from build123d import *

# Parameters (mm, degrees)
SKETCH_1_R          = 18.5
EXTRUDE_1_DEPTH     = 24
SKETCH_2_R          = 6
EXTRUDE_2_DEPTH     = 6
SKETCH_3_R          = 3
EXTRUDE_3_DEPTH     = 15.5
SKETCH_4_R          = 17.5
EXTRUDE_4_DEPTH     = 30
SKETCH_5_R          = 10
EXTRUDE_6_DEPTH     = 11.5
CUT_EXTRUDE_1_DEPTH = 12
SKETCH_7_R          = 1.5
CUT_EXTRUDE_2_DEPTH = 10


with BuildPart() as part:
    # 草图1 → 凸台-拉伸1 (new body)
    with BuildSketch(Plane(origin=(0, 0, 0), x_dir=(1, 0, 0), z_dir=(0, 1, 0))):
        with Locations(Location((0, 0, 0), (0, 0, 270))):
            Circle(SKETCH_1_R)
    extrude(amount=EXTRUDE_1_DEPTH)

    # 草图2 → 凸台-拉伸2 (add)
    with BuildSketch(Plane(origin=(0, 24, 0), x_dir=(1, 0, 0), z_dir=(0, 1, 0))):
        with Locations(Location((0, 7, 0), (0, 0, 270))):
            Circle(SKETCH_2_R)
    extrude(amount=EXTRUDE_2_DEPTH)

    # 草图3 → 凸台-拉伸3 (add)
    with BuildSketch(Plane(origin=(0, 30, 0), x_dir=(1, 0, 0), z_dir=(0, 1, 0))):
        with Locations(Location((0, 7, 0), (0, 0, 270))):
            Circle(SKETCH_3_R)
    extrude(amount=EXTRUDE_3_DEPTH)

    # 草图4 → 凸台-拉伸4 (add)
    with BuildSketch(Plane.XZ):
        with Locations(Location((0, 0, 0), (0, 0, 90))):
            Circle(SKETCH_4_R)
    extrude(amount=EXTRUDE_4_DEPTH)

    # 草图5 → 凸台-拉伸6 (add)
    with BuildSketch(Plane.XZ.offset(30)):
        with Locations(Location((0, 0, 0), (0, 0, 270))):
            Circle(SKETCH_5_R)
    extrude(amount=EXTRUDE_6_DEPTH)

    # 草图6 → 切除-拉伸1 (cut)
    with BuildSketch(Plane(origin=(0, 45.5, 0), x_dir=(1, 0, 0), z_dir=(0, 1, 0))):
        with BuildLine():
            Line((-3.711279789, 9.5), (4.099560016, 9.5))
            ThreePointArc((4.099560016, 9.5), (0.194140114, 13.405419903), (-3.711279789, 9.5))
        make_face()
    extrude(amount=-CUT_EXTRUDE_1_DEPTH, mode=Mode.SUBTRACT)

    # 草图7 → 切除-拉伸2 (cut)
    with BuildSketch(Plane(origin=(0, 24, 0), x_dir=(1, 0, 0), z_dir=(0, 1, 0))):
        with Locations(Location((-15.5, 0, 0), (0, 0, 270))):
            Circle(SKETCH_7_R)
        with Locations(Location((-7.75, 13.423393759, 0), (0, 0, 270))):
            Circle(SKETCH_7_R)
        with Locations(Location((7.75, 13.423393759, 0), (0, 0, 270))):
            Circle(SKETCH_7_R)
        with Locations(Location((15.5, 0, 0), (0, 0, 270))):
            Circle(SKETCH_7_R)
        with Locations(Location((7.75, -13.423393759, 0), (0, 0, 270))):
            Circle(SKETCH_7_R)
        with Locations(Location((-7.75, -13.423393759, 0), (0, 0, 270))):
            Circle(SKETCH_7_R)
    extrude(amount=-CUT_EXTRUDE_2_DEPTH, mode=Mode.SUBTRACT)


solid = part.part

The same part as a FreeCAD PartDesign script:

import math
import FreeCAD as App
import Part
import Sketcher
from FreeCAD import Vector

doc = App.newDocument("Part")
body = doc.addObject("PartDesign::Body", "Body")

# Sketch on XZ plane
sketch1 = body.newObject("Sketcher::SketchObject", "Sketch")
sketch1.AttachmentSupport = (doc.getObject("XZ_Plane"), [""])
sketch1.MapMode = "FlatFace"
sketch1.addGeometry(Part.Circle(Vector(0, 0, 0), Vector(0, 0, 1), 18), False)
sketch1.addConstraint([
    Sketcher.Constraint("Coincident", 0, 3, -1, 1),
    Sketcher.Constraint("Diameter", 0, 37.0),
])
pad1 = body.newObject("PartDesign::Pad", "Pad")
pad1.Profile = sketch1
pad1.Length = 24
pad1.Reversed = True

# Sketch on XZ plane
sketch2 = body.newObject("Sketcher::SketchObject", "Sketch001")
sketch2.AttachmentSupport = (doc.getObject("XZ_Plane"), [""])
sketch2.MapMode = "FlatFace"
sketch2.AttachmentOffset = App.Placement(Vector(0, 0, -24), App.Rotation())
sketch2.addGeometry(Part.Circle(Vector(0, -7, 0), Vector(0, 0, 1), 6), False)
sketch2.addConstraint([
    Sketcher.Constraint("PointOnObject", 0, 3, -2),
    Sketcher.Constraint("Diameter", 0, 12.0),
    Sketcher.Constraint("DistanceY", 0, 3, -1, 1, 7.0),
])
pad2 = body.newObject("PartDesign::Pad", "Pad001")
pad2.Profile = sketch2
pad2.Length = 6
pad2.Reversed = True

# Sketch on XZ plane
sketch3 = body.newObject("Sketcher::SketchObject", "Sketch002")
sketch3.AttachmentSupport = (doc.getObject("XZ_Plane"), [""])
sketch3.MapMode = "FlatFace"
sketch3.AttachmentOffset = App.Placement(Vector(0, 0, -30), App.Rotation())
sketch3.addGeometry(Part.Circle(Vector(0, -7, 0), Vector(0, 0, 1), 3), False)
sketch3.addConstraint([
    Sketcher.Constraint("PointOnObject", 0, 3, -2),
    Sketcher.Constraint("Diameter", 0, 6.0),
    Sketcher.Constraint("DistanceY", 0, 3, -1, 1, 7.0),
])
pad3 = body.newObject("PartDesign::Pad", "Pad002")
pad3.Profile = sketch3
pad3.Length = 15.5
pad3.Reversed = True

# Sketch on XZ plane
sketch4 = body.newObject("Sketcher::SketchObject", "Sketch003")
sketch4.AttachmentSupport = (doc.getObject("XZ_Plane"), [""])
sketch4.MapMode = "FlatFace"
sketch4.addGeometry(Part.Circle(Vector(0, 0, 0), Vector(0, 0, 1), 18), False)
sketch4.addConstraint([
    Sketcher.Constraint("Coincident", 0, 3, -1, 1),
    Sketcher.Constraint("Diameter", 0, 35.0),
])
pad4 = body.newObject("PartDesign::Pad", "Pad003")
pad4.Profile = sketch4
pad4.Length = 30

# Sketch on XZ plane
sketch5 = body.newObject("Sketcher::SketchObject", "Sketch004")
sketch5.AttachmentSupport = (doc.getObject("XZ_Plane"), [""])
sketch5.MapMode = "FlatFace"
sketch5.AttachmentOffset = App.Placement(Vector(0, 0, 30), App.Rotation())
sketch5.addGeometry(Part.Circle(Vector(0, 0, 0), Vector(0, 0, 1), 10), False)
sketch5.addConstraint([
    Sketcher.Constraint("Coincident", 0, 3, -1, 1),
    Sketcher.Constraint("Diameter", 0, 20.0),
])
pad5 = body.newObject("PartDesign::Pad", "Pad004")
pad5.Profile = sketch5
pad5.Length = 11.5

# Sketch on XZ plane
sketch6 = body.newObject("Sketcher::SketchObject", "Sketch005")
sketch6.AttachmentSupport = (doc.getObject("XZ_Plane"), [""])
sketch6.MapMode = "FlatFace"
sketch6.AttachmentOffset = App.Placement(Vector(0, 0, -45.5), App.Rotation())
sketch6.addGeometry([
    Part.LineSegment(Vector(-3.7, -9.5, 0), Vector(4.1, -9.5, 0)),
    Part.ArcOfCircle(Part.Circle(Vector(0.2, -9.5, 0), Vector(0, 0, 1), 3.9), math.radians(180), math.radians(360)),
], False)
sketch6.addConstraint([
    Sketcher.Constraint("Coincident", 0, 1, 1, 1),
    Sketcher.Constraint("Coincident", 1, 2, 0, 2),
    Sketcher.Constraint("Horizontal", 0),
    Sketcher.Constraint("Horizontal", 1, 3, 0, 1),
    Sketcher.Constraint("DistanceY", 1, 3, -1, 1, 9.5),
    Sketcher.Constraint("Radius", 1, 3.90542),
    Sketcher.Constraint("DistanceX", -1, 1, 1, 3, 0.19414),
])
pocket1 = body.newObject("PartDesign::Pocket", "Pocket")
pocket1.Profile = sketch6
pocket1.Length = 12
pocket1.Reversed = True

# Sketch on XZ plane
sketch7 = body.newObject("Sketcher::SketchObject", "Sketch006")
sketch7.AttachmentSupport = (doc.getObject("XZ_Plane"), [""])
sketch7.MapMode = "FlatFace"
sketch7.AttachmentOffset = App.Placement(Vector(0, 0, -24), App.Rotation())
sketch7.addGeometry([
    Part.Circle(Vector(-15.5, 0, 0), Vector(0, 0, 1), 1.5),  # 0
    Part.Circle(Vector(-7.8, -13.4, 0), Vector(0, 0, 1), 1.5),  # 1
    Part.Circle(Vector(7.8, -13.4, 0), Vector(0, 0, 1), 1.5),  # 2
    Part.Circle(Vector(15.5, 0, 0), Vector(0, 0, 1), 1.5),  # 3
    Part.Circle(Vector(7.8, 13.4, 0), Vector(0, 0, 1), 1.5),  # 4
    Part.Circle(Vector(-7.8, 13.4, 0), Vector(0, 0, 1), 1.5),  # 5
], False)
sketch7.addConstraint([
    Sketcher.Constraint("Equal", 0, 1),
    Sketcher.Constraint("Equal", 1, 2),
    Sketcher.Constraint("Equal", 2, 3),
    Sketcher.Constraint("Equal", 3, 4),
    Sketcher.Constraint("Equal", 4, 5),
    Sketcher.Constraint("Symmetric", 0, 3, 3, 3, -1, 1),
    Sketcher.Constraint("Symmetric", 1, 3, 4, 3, -1, 1),
    Sketcher.Constraint("Symmetric", 2, 3, 5, 3, -1, 1),
    Sketcher.Constraint("Symmetric", 1, 3, 2, 3, -2),
    Sketcher.Constraint("PointOnObject", 0, 3, -1),
    Sketcher.Constraint("Diameter", 0, 3.0),
    Sketcher.Constraint("DistanceX", 0, 3, 3, 3, 31.0),
    Sketcher.Constraint("DistanceX", 1, 3, 2, 3, 15.5),
    Sketcher.Constraint("DistanceY", 1, 3, -1, 1, 13.423394),
])
pocket2 = body.newObject("PartDesign::Pocket", "Pocket001")
pocket2.Profile = sketch7
pocket2.Length = 10
pocket2.Reversed = True

doc.recompute()
